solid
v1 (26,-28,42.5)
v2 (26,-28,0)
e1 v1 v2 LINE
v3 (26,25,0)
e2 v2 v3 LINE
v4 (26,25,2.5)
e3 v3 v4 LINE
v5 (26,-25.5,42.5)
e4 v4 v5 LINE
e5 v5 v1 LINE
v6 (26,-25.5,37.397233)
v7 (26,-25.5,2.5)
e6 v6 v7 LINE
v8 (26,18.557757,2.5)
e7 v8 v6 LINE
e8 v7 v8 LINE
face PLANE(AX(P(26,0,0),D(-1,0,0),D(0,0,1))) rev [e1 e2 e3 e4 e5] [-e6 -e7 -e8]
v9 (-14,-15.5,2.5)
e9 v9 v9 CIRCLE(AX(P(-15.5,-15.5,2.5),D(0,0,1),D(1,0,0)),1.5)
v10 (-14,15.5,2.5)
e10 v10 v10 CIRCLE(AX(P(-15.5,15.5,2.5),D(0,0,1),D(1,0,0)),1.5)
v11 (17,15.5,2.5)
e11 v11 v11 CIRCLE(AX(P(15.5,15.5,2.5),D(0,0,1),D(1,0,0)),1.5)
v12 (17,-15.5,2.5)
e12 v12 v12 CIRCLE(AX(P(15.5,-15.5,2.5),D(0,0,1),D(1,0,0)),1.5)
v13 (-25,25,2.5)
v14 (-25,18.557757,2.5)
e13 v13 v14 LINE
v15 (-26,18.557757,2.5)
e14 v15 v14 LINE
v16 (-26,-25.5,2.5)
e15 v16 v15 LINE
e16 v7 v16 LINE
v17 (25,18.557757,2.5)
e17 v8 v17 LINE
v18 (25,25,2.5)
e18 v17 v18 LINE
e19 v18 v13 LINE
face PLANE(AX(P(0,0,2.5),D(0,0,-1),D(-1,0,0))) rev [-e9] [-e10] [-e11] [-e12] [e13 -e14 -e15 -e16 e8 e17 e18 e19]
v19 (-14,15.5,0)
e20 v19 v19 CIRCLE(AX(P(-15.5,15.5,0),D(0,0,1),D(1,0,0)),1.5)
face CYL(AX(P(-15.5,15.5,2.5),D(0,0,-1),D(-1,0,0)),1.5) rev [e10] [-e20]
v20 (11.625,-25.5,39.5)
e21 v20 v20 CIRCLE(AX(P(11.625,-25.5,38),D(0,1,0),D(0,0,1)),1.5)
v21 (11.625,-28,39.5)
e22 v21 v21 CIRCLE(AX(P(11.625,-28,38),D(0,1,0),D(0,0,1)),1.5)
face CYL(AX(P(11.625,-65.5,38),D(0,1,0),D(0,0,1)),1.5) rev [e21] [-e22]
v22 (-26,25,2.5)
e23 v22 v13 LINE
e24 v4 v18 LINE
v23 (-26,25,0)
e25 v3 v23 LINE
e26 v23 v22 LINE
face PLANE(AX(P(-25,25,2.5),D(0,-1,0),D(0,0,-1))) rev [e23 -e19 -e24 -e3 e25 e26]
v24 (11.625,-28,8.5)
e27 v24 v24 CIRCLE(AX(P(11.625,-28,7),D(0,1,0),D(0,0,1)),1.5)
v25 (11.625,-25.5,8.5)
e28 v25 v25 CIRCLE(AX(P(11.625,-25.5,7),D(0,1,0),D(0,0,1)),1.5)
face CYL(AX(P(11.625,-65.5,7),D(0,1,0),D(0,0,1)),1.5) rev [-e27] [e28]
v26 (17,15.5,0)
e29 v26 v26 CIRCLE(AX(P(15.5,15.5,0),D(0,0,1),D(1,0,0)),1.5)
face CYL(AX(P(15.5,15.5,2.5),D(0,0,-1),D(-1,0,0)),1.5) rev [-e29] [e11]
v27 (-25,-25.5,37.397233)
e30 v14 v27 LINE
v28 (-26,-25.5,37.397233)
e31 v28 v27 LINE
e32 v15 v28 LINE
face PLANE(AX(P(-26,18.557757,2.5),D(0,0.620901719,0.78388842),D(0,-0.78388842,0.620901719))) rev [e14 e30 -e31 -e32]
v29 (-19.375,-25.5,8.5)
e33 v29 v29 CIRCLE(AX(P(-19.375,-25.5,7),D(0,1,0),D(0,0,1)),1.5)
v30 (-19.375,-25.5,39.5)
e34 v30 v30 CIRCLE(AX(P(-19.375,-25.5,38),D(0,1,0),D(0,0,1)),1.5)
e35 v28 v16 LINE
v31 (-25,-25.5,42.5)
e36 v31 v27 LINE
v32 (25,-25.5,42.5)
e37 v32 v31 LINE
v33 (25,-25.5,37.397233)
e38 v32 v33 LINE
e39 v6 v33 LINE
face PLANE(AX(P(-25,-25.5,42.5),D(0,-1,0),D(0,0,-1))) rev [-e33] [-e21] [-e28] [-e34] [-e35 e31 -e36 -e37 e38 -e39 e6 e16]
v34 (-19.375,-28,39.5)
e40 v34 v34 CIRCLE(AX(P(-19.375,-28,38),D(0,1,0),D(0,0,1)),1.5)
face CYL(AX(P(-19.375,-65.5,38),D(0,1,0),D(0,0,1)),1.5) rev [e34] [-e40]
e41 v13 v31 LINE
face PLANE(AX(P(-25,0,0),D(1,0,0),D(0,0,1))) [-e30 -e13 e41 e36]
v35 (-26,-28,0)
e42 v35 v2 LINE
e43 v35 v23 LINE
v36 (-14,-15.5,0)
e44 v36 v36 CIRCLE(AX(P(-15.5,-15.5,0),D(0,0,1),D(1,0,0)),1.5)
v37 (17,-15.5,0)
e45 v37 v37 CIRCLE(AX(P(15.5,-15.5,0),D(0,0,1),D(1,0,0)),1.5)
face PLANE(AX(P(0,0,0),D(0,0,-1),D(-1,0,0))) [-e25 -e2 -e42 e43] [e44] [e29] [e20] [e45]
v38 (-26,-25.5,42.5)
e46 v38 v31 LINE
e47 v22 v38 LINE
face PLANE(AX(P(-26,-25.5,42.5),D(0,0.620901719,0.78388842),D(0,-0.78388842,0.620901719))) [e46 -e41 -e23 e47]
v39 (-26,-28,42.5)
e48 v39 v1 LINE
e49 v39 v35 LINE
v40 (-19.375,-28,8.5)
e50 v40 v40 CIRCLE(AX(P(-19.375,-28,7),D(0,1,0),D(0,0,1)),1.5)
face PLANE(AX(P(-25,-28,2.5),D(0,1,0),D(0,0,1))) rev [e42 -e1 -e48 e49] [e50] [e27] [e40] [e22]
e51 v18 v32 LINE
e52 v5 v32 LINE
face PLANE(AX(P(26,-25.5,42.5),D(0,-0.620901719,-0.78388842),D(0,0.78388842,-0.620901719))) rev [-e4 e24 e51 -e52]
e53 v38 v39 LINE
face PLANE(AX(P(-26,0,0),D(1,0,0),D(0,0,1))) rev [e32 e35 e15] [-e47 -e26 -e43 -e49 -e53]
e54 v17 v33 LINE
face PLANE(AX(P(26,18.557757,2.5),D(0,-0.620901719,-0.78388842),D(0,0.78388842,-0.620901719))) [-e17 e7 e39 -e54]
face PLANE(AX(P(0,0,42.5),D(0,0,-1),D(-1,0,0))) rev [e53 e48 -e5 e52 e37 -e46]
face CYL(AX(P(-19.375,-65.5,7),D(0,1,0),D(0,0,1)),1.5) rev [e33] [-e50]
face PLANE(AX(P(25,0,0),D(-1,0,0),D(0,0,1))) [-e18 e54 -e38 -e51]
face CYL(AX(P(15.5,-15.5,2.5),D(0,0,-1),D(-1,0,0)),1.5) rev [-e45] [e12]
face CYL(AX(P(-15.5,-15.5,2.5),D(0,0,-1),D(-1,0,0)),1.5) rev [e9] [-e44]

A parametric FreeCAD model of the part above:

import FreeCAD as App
import Part
import Sketcher
from FreeCAD import Vector
Q = App.Units.Quantity

doc = App.newDocument("Part")
params = doc.addObject("Spreadsheet::Sheet", "Params")
for row, (alias, value) in enumerate([
    ("sketch1_diameter", "3 mm"),
    ("sketch1_width", "50 mm"),
    ("sketch1_height", "53 mm"),
    ("pad1_length", "2.5 mm"),
    ("sketch2_width", "50 mm"),
    ("sketch2_height", "2.5 mm"),
    ("pad2_length", "40 mm"),
    ("sketch3_diameter", "3 mm"),
    ("pocket1_length", "40 mm"),
    ("sketch4_width", "53 mm"),
    ("sketch4_width2", "2.5 mm"),
    ("sketch4_height", "42.5 mm"),
    ("pad3_length", "1 mm"),
], start=1):
    params.set(f"A{row}", alias)
    params.set(f"B{row}", "=" + value)
    params.setAlias(f"B{row}", alias)

body = doc.addObject("PartDesign::Body", "Body")

sketch1 = body.newObject("Sketcher::SketchObject", "Sketch")
sketch1.AttachmentSupport = (doc.getObject("XY_Plane"), [""])
sketch1.MapMode = "FlatFace"
sketch1.addGeometry(Part.LineSegment(Vector(-25, 25, 0), Vector(-25, -28, 0)), False)
sketch1.addGeometry(Part.LineSegment(Vector(-25, -28, 0), Vector(25, -28, 0)), False)
sketch1.addGeometry(Part.LineSegment(Vector(25, -28, 0), Vector(25, 25, 0)), False)
sketch1.addGeometry(Part.LineSegment(Vector(25, 25, 0), Vector(-25, 25, 0)), False)
sketch1.addGeometry(Part.Circle(Vector(15.5, -15.5, 0), Vector(0, 0, 1), 1.5), False)
sketch1.addGeometry(Part.Circle(Vector(-15.5, -15.5, 0), Vector(0, 0, 1), 1.5), False)
sketch1.addGeometry(Part.Circle(Vector(15.5, 15.5, 0), Vector(0, 0, 1), 1.5), False)
sketch1.addGeometry(Part.Circle(Vector(-15.5, 15.5, 0), Vector(0, 0, 1), 1.5), False)
sketch1.addConstraint(Sketcher.Constraint("Coincident", 0, 2, 1, 1))
sketch1.addConstraint(Sketcher.Constraint("Coincident", 1, 2, 2, 1))
sketch1.addConstraint(Sketcher.Constraint("Coincident", 2, 2, 3, 1))
sketch1.addConstraint(Sketcher.Constraint("Coincident", 3, 2, 0, 1))
sketch1.addConstraint(Sketcher.Constraint("Vertical", 0))
sketch1.addConstraint(Sketcher.Constraint("Horizontal", 1))
sketch1.addConstraint(Sketcher.Constraint("Vertical", 2))
sketch1.addConstraint(Sketcher.Constraint("Horizontal", 3))
sketch1.addConstraint(Sketcher.Constraint("Equal", 4, 5))
sketch1.addConstraint(Sketcher.Constraint("Equal", 5, 6))
sketch1.addConstraint(Sketcher.Constraint("Equal", 6, 7))
sketch1.addConstraint(Sketcher.Constraint("Symmetric", 5, 3, 6, 3, -1, 1))
sketch1.addConstraint(Sketcher.Constraint("Symmetric", 4, 3, 7, 3, -1, 1))
sketch1.addConstraint(Sketcher.Constraint("Symmetric", 4, 3, 5, 3, -2))
sketch1.addConstraint(Sketcher.Constraint("Diameter", 4, Q("3 mm")))
sketch1.addConstraint(Sketcher.Constraint("DistanceX", 1, 1, 1, 2, Q("50 mm")))
sketch1.addConstraint(Sketcher.Constraint("DistanceY", 0, 2, 0, 1, Q("53 mm")))
sketch1.addConstraint(Sketcher.Constraint("DistanceX", 0, 2, -1, 1, Q("25 mm")))
sketch1.addConstraint(Sketcher.Constraint("DistanceY", 0, 2, -1, 1, Q("28 mm")))
sketch1.addConstraint(Sketcher.Constraint("DistanceX", 5, 3, 4, 3, Q("31 mm")))
sketch1.addConstraint(Sketcher.Constraint("DistanceY", 4, 3, 6, 3, Q("31 mm")))
sketch1.setExpression("Constraints[14]", "Params.sketch1_diameter")
sketch1.setExpression("Constraints[15]", "Params.sketch1_width")
sketch1.setExpression("Constraints[16]", "Params.sketch1_height")
pad1 = body.newObject("PartDesign::Pad", "Pad")
pad1.Profile = sketch1
pad1.setExpression("Length", "Params.pad1_length")

sketch2 = body.newObject("Sketcher::SketchObject", "Sketch001")
sketch2.AttachmentSupport = (doc.getObject("XY_Plane"), [""])
sketch2.MapMode = "FlatFace"
sketch2.AttachmentOffset = App.Placement(Vector(0, 0, 2.5), App.Rotation())
sketch2.addGeometry(Part.LineSegment(Vector(-25, -25.5, 0), Vector(-25, -28, 0)), False)
sketch2.addGeometry(Part.LineSegment(Vector(-25, -28, 0), Vector(25, -28, 0)), False)
sketch2.addGeometry(Part.LineSegment(Vector(25, -28, 0), Vector(25, -25.5, 0)), False)
sketch2.addGeometry(Part.LineSegment(Vector(25, -25.5, 0), Vector(-25, -25.5, 0)), False)
sketch2.addConstraint(Sketcher.Constraint("Coincident", 0, 2, 1, 1))
sketch2.addConstraint(Sketcher.Constraint("Coincident", 1, 2, 2, 1))
sketch2.addConstraint(Sketcher.Constraint("Coincident", 2, 2, 3, 1))
sketch2.addConstraint(Sketcher.Constraint("Coincident", 3, 2, 0, 1))
sketch2.addConstraint(Sketcher.Constraint("Vertical", 0))
sketch2.addConstraint(Sketcher.Constraint("Horizontal", 1))
sketch2.addConstraint(Sketcher.Constraint("Vertical", 2))
sketch2.addConstraint(Sketcher.Constraint("Horizontal", 3))
sketch2.addConstraint(Sketcher.Constraint("DistanceX", 1, 1, 1, 2, Q("50 mm")))
sketch2.addConstraint(Sketcher.Constraint("DistanceY", 0, 2, 0, 1, Q("2.5 mm")))
sketch2.addConstraint(Sketcher.Constraint("DistanceX", 0, 2, -1, 1, Q("25 mm")))
sketch2.addConstraint(Sketcher.Constraint("DistanceY", 0, 2, -1, 1, Q("28 mm")))
sketch2.setExpression("Constraints[8]", "Params.sketch2_width")
sketch2.setExpression("Constraints[9]", "Params.sketch2_height")
pad2 = body.newObject("PartDesign::Pad", "Pad001")
pad2.Profile = sketch2
pad2.setExpression("Length", "Params.pad2_length")

sketch3 = body.newObject("Sketcher::SketchObject", "Sketch002")
sketch3.AttachmentSupport = (doc.getObject("XZ_Plane"), [""])
sketch3.MapMode = "FlatFace"
sketch3.AttachmentOffset = App.Placement(Vector(0, 0, 25.5), App.Rotation())
sketch3.addGeometry(Part.Circle(Vector(-19.4, 7, 0), Vector(0, 0, 1), 1.5), False)
sketch3.addGeometry(Part.Circle(Vector(11.6, 7, 0), Vector(0, 0, 1), 1.5), False)
sketch3.addGeometry(Part.Circle(Vector(11.6, 38, 0), Vector(0, 0, 1), 1.5), False)
sketch3.addGeometry(Part.Circle(Vector(-19.4, 38, 0), Vector(0, 0, 1), 1.5), False)
sketch3.addConstraint(Sketcher.Constraint("Equal", 0, 1))
sketch3.addConstraint(Sketcher.Constraint("Equal", 1, 2))
sketch3.addConstraint(Sketcher.Constraint("Equal", 2, 3))
sketch3.addConstraint(Sketcher.Constraint("Horizontal", 0, 3, 1, 3))
sketch3.addConstraint(Sketcher.Constraint("Horizontal", 2, 3, 3, 3))
sketch3.addConstraint(Sketcher.Constraint("Vertical", 1, 3, 2, 3))
sketch3.addConstraint(Sketcher.Constraint("Vertical", 0, 3, 3, 3))
sketch3.addConstraint(Sketcher.Constraint("Diameter", 0, Q("3 mm")))
sketch3.addConstraint(Sketcher.Constraint("DistanceY", -1, 1, 0, 3, Q("7 mm")))
sketch3.addConstraint(Sketcher.Constraint("DistanceY", -1, 1, 2, 3, Q("38 mm")))
sketch3.addConstraint(Sketcher.Constraint("DistanceX", 0, 3, 1, 3, Q("31 mm")))
sketch3.addConstraint(Sketcher.Constraint("DistanceX", 0, 3, -1, 1, Q("19.375 mm")))
sketch3.setExpression("Constraints[7]", "Params.sketch3_diameter")
pocket1 = body.newObject("PartDesign::Pocket", "Pocket")
pocket1.Profile = sketch3
pocket1.setExpression("Length", "Params.pocket1_length")
pocket1.Reversed = True

sketch4 = body.newObject("Sketcher::SketchObject", "Sketch003")
sketch4.AttachmentSupport = (doc.getObject("YZ_Plane"), [""])
sketch4.MapMode = "FlatFace"
sketch4.AttachmentOffset = App.Placement(Vector(0, 0, 25), App.Rotation())
sketch4.addGeometry(Part.LineSegment(Vector(25, 2.5, 0), Vector(-25.5, 42.5, 0)), False)
sketch4.addGeometry(Part.LineSegment(Vector(-25.5, 42.5, 0), Vector(-28, 42.5, 0)), False)
sketch4.addGeometry(Part.LineSegment(Vector(-28, 42.5, 0), Vector(-28, 0, 0)), False)
sketch4.addGeometry(Part.LineSegment(Vector(-28, 0, 0), Vector(25, 0, 0)), False)
sketch4.addGeometry(Part.LineSegment(Vector(25, 0, 0), Vector(25, 2.5, 0)), False)
sketch4.addGeometry(Part.LineSegment(Vector(18.6, 2.5, 0), Vector(-25.5, 2.5, 0)), False)
sketch4.addGeometry(Part.LineSegment(Vector(-25.5, 2.5, 0), Vector(-25.5, 37.4, 0)), False)
sketch4.addGeometry(Part.LineSegment(Vector(-25.5, 37.4, 0), Vector(18.6, 2.5, 0)), False)
sketch4.addConstraint(Sketcher.Constraint("Coincident", 0, 2, 1, 1))
sketch4.addConstraint(Sketcher.Constraint("Coincident", 1, 2, 2, 1))
sketch4.addConstraint(Sketcher.Constraint("Coincident", 2, 2, 3, 1))
sketch4.addConstraint(Sketcher.Constraint("Coincident", 3, 2, 4, 1))
sketch4.addConstraint(Sketcher.Constraint("Coincident", 4, 2, 0, 1))
sketch4.addConstraint(Sketcher.Constraint("Coincident", 5, 2, 6, 1))
sketch4.addConstraint(Sketcher.Constraint("Coincident", 6, 2, 7, 1))
sketch4.addConstraint(Sketcher.Constraint("Coincident", 7, 2, 5, 1))
sketch4.addConstraint(Sketcher.Constraint("Horizontal", 1))
sketch4.addConstraint(Sketcher.Constraint("Vertical", 2))
sketch4.addConstraint(Sketcher.Constraint("Horizontal", 3))
sketch4.addConstraint(Sketcher.Constraint("Vertical", 4))
sketch4.addConstraint(Sketcher.Constraint("Horizontal", 5))
sketch4.addConstraint(Sketcher.Constraint("Vertical", 6))
sketch4.addConstraint(Sketcher.Constraint("PointOnObject", 2, 2, -1))
sketch4.addConstraint(Sketcher.Constraint("Parallel", 0, 7))
sketch4.addConstraint(Sketcher.Constraint("Horizontal", 4, 2, 5, 2))
sketch4.addConstraint(Sketcher.Constraint("Vertical", 0, 2, 5, 2))
sketch4.addConstraint(Sketcher.Constraint("Equal", 1, 4))
sketch4.addConstraint(Sketcher.Constraint("DistanceX", 3, 1, 3, 2, Q("53 mm")))
sketch4.addConstraint(Sketcher.Constraint("DistanceX", 1, 2, 1, 1, Q("2.5 mm")))
sketch4.addConstraint(Sketcher.Constraint("DistanceY", 2, 2, 2, 1, Q("42.5 mm")))
sketch4.addConstraint(Sketcher.Constraint("DistanceX", 1, 2, -1, 1, Q("28 mm")))
sketch4.addConstraint(Sketcher.Constraint("DistanceX", 5, 2, 5, 1, Q("44.057757 mm")))
sketch4.setExpression("Constraints[19]", "Params.sketch4_width")
sketch4.setExpression("Constraints[20]", "Params.sketch4_width2")
sketch4.setExpression("Constraints[21]", "Params.sketch4_height")
pad3 = body.newObject("PartDesign::Pad", "Pad002")
pad3.Profile = sketch4
pad3.setExpression("Length", "Params.pad3_length")
doc.recompute()

mirrored = body.newObject("PartDesign::Mirrored", "Mirrored")
mirrored.Originals = [pad3]
mirrored.MirrorPlane = (doc.getObject("YZ_Plane"), [""])
body.Tip = mirrored

doc.recompute()
